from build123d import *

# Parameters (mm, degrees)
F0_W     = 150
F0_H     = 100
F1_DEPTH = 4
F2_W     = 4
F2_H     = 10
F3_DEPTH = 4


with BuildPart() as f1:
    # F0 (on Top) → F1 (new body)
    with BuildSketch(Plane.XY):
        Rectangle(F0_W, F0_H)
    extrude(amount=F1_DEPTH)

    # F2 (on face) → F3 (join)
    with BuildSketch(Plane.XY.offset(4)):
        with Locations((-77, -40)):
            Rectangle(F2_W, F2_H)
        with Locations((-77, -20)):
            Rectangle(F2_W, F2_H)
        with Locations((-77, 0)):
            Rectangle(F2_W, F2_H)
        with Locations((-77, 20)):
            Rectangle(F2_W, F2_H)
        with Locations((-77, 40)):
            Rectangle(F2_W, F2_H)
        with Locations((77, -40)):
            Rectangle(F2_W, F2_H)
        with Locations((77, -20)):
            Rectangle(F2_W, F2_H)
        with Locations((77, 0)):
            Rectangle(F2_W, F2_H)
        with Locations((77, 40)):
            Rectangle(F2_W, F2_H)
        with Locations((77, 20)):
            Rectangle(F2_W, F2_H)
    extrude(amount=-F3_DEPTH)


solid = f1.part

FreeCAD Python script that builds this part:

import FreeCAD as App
import Part
import Sketcher

V = App.Vector
Q = App.Units.Quantity

doc = App.newDocument("Part")
body = doc.addObject("PartDesign::Body", "Body")

sketch1 = body.newObject("Sketcher::SketchObject", "Sketch")
sketch1.AttachmentSupport = (doc.getObject("XY_Plane"), [""])
sketch1.MapMode = "FlatFace"
sketch1.addGeometry(Part.LineSegment(V(-75, 50, 0), V(-75, -50, 0)), False)
sketch1.addGeometry(Part.LineSegment(V(-75, -50, 0), V(75, -50, 0)), False)
sketch1.addGeometry(Part.LineSegment(V(75, -50, 0), V(75, 50, 0)), False)
sketch1.addGeometry(Part.LineSegment(V(75, 50, 0), V(-75, 50, 0)), False)
sketch1.addConstraint(Sketcher.Constraint("Coincident", 0, 2, 1, 1))
sketch1.addConstraint(Sketcher.Constraint("Coincident", 1, 2, 2, 1))
sketch1.addConstraint(Sketcher.Constraint("Coincident", 2, 2, 3, 1))
sketch1.addConstraint(Sketcher.Constraint("Coincident", 3, 2, 0, 1))
sketch1.addConstraint(Sketcher.Constraint("Vertical", 0))
sketch1.addConstraint(Sketcher.Constraint("Horizontal", 1))
sketch1.addConstraint(Sketcher.Constraint("Vertical", 2))
sketch1.addConstraint(Sketcher.Constraint("Horizontal", 3))
sketch1.addConstraint(Sketcher.Constraint("Symmetric", 0, 2, 2, 2, -1, 1))
sketch1.addConstraint(Sketcher.Constraint("DistanceX", 1, 1, 1, 2, Q("150 mm")))
sketch1.addConstraint(Sketcher.Constraint("DistanceY", 0, 2, 0, 1, Q("100 mm")))
pad1 = body.newObject("PartDesign::Pad", "Pad")
pad1.Profile = sketch1
pad1.Length = 4

sketch2 = body.newObject("Sketcher::SketchObject", "Sketch001")
sketch2.AttachmentSupport = (doc.getObject("XY_Plane"), [""])
sketch2.MapMode = "FlatFace"
sketch2.AttachmentOffset = App.Placement(V(0, 0, 4), App.Rotation())
sketch2.addGeometry(Part.LineSegment(V(-79, -35, 0), V(-79, -45, 0)), False)
sketch2.addGeometry(Part.LineSegment(V(-79, -45, 0), V(-75, -45, 0)), False)
sketch2.addGeometry(Part.LineSegment(V(-75, -45, 0), V(-75, -35, 0)), False)
sketch2.addGeometry(Part.LineSegment(V(-75, -35, 0), V(-79, -35, 0)), False)
sketch2.addGeometry(Part.LineSegment(V(-79, -15, 0), V(-79, -25, 0)), False)
sketch2.addGeometry(Part.LineSegment(V(-79, -25, 0), V(-75, -25, 0)), False)
sketch2.addGeometry(Part.LineSegment(V(-75, -25, 0), V(-75, -15, 0)), False)
sketch2.addGeometry(Part.LineSegment(V(-75, -15, 0), V(-79, -15, 0)), False)
sketch2.addGeometry(Part.LineSegment(V(-79, 5, 0), V(-79, -5, 0)), False)
sketch2.addGeometry(Part.LineSegment(V(-79, -5, 0), V(-75, -5, 0)), False)
sketch2.addGeometry(Part.LineSegment(V(-75, -5, 0), V(-75, 5, 0)), False)
sketch2.addGeometry(Part.LineSegment(V(-75, 5, 0), V(-79, 5, 0)), False)
sketch2.addGeometry(Part.LineSegment(V(-79, 25, 0), V(-79, 15, 0)), False)
sketch2.addGeometry(Part.LineSegment(V(-79, 15, 0), V(-75, 15, 0)), False)
sketch2.addGeometry(Part.LineSegment(V(-75, 15, 0), V(-75, 25, 0)), False)
sketch2.addGeometry(Part.LineSegment(V(-75, 25, 0), V(-79, 25, 0)), False)
sketch2.addGeometry(Part.LineSegment(V(-79, 45, 0), V(-79, 35, 0)), False)
sketch2.addGeometry(Part.LineSegment(V(-79, 35, 0), V(-75, 35, 0)), False)
sketch2.addGeometry(Part.LineSegment(V(-75, 35, 0), V(-75, 45, 0)), False)
sketch2.addGeometry(Part.LineSegment(V(-75, 45, 0), V(-79, 45, 0)), False)
sketch2.addGeometry(Part.LineSegment(V(75, -35, 0), V(75, -45, 0)), False)
sketch2.addGeometry(Part.LineSegment(V(75, -45, 0), V(79, -45, 0)), False)
sketch2.addGeometry(Part.LineSegment(V(79, -45, 0), V(79, -35, 0)), False)
sketch2.addGeometry(Part.LineSegment(V(79, -35, 0), V(75, -35, 0)), False)
sketch2.addGeometry(Part.LineSegment(V(75, -15, 0), V(75, -25, 0)), False)
sketch2.addGeometry(Part.LineSegment(V(75, -25, 0), V(79, -25, 0)), False)
sketch2.addGeometry(Part.LineSegment(V(79, -25, 0), V(79, -15, 0)), False)
sketch2.addGeometry(Part.LineSegment(V(79, -15, 0), V(75, -15, 0)), False)
sketch2.addGeometry(Part.LineSegment(V(75, 5, 0), V(75, -5, 0)), False)
sketch2.addGeometry(Part.LineSegment(V(75, -5, 0), V(79, -5, 0)), False)
sketch2.addGeometry(Part.LineSegment(V(79, -5, 0), V(79, 5, 0)), False)
sketch2.addGeometry(Part.LineSegment(V(79, 5, 0), V(75, 5, 0)), False)
sketch2.addGeometry(Part.LineSegment(V(75, 45, 0), V(75, 35, 0)), False)
sketch2.addGeometry(Part.LineSegment(V(75, 35, 0), V(79, 35, 0)), False)
sketch2.addGeometry(Part.LineSegment(V(79, 35, 0), V(79, 45, 0)), False)
sketch2.addGeometry(Part.LineSegment(V(79, 45, 0), V(75, 45, 0)), False)
sketch2.addGeometry(Part.LineSegment(V(75, 25, 0), V(75, 15, 0)), False)
sketch2.addGeometry(Part.LineSegment(V(75, 15, 0), V(79, 15, 0)), False)
sketch2.addGeometry(Part.LineSegment(V(79, 15, 0), V(79, 25, 0)), False)
sketch2.addGeometry(Part.LineSegment(V(79, 25, 0), V(75, 25, 0)), False)
sketch2.addConstraint(Sketcher.Constraint("Coincident", 0, 2, 1, 1))
sketch2.addConstraint(Sketcher.Constraint("Coincident", 1, 2, 2, 1))
sketch2.addConstraint(Sketcher.Constraint("Coincident", 2, 2, 3, 1))
sketch2.addConstraint(Sketcher.Constraint("Coincident", 3, 2, 0, 1))
sketch2.addConstraint(Sketcher.Constraint("Coincident", 4, 2, 5, 1))
sketch2.addConstraint(Sketcher.Constraint("Coincident", 5, 2, 6, 1))
sketch2.addConstraint(Sketcher.Constraint("Coincident", 6, 2, 7, 1))
sketch2.addConstraint(Sketcher.Constraint("Coincident", 7, 2, 4, 1))
sketch2.addConstraint(Sketcher.Constraint("Coincident", 8, 2, 9, 1))
sketch2.addConstraint(Sketcher.Constraint("Coincident", 9, 2, 10, 1))
sketch2.addConstraint(Sketcher.Constraint("Coincident", 10, 2, 11, 1))
sketch2.addConstraint(Sketcher.Constraint("Coincident", 11, 2, 8, 1))
sketch2.addConstraint(Sketcher.Constraint("Coincident", 12, 2, 13, 1))
sketch2.addConstraint(Sketcher.Constraint("Coincident", 13, 2, 14, 1))
sketch2.addConstraint(Sketcher.Constraint("Coincident", 14, 2, 15, 1))
sketch2.addConstraint(Sketcher.Constraint("Coincident", 15, 2, 12, 1))
sketch2.addConstraint(Sketcher.Constraint("Coincident", 16, 2, 17, 1))
sketch2.addConstraint(Sketcher.Constraint("Coincident", 17, 2, 18, 1))
sketch2.addConstraint(Sketcher.Constraint("Coincident", 18, 2, 19, 1))
sketch2.addConstraint(Sketcher.Constraint("Coincident", 19, 2, 16, 1))
sketch2.addConstraint(Sketcher.Constraint("Coincident", 20, 2, 21, 1))
sketch2.addConstraint(Sketcher.Constraint("Coincident", 21, 2, 22, 1))
sketch2.addConstraint(Sketcher.Constraint("Coincident", 22, 2, 23, 1))
sketch2.addConstraint(Sketcher.Constraint("Coincident", 23, 2, 20, 1))
sketch2.addConstraint(Sketcher.Constraint("Coincident", 24, 2, 25, 1))
sketch2.addConstraint(Sketcher.Constraint("Coincident", 25, 2, 26, 1))
sketch2.addConstraint(Sketcher.Constraint("Coincident", 26, 2, 27, 1))
sketch2.addConstraint(Sketcher.Constraint("Coincident", 27, 2, 24, 1))
sketch2.addConstraint(Sketcher.Constraint("Coincident", 28, 2, 29, 1))
sketch2.addConstraint(Sketcher.Constraint("Coincident", 29, 2, 30, 1))
sketch2.addConstraint(Sketcher.Constraint("Coincident", 30, 2, 31, 1))
sketch2.addConstraint(Sketcher.Constraint("Coincident", 31, 2, 28, 1))
sketch2.addConstraint(Sketcher.Constraint("Coincident", 32, 2, 33, 1))
sketch2.addConstraint(Sketcher.Constraint("Coincident", 33, 2, 34, 1))
sketch2.addConstraint(Sketcher.Constraint("Coincident", 34, 2, 35, 1))
sketch2.addConstraint(Sketcher.Constraint("Coincident", 35, 2, 32, 1))
sketch2.addConstraint(Sketcher.Constraint("Coincident", 36, 2, 37, 1))
sketch2.addConstraint(Sketcher.Constraint("Coincident", 37, 2, 38, 1))
sketch2.addConstraint(Sketcher.Constraint("Coincident", 38, 2, 39, 1))
sketch2.addConstraint(Sketcher.Constraint("Coincident", 39, 2, 36, 1))
sketch2.addConstraint(Sketcher.Constraint("Vertical", 0))
sketch2.addConstraint(Sketcher.Constraint("Horizontal", 1))
sketch2.addConstraint(Sketcher.Constraint("Vertical", 2))
sketch2.addConstraint(Sketcher.Constraint("Horizontal", 3))
sketch2.addConstraint(Sketcher.Constraint("Vertical", 4))
sketch2.addConstraint(Sketcher.Constraint("Horizontal", 5))
sketch2.addConstraint(Sketcher.Constraint("Vertical", 6))
sketch2.addConstraint(Sketcher.Constraint("Horizontal", 7))
sketch2.addConstraint(Sketcher.Constraint("Vertical", 8))
sketch2.addConstraint(Sketcher.Constraint("Horizontal", 9))
sketch2.addConstraint(Sketcher.Constraint("Vertical", 10))
sketch2.addConstraint(Sketcher.Constraint("Horizontal", 11))
sketch2.addConstraint(Sketcher.Constraint("Vertical", 12))
sketch2.addConstraint(Sketcher.Constraint("Horizontal", 13))
sketch2.addConstraint(Sketcher.Constraint("Vertical", 14))
sketch2.addConstraint(Sketcher.Constraint("Horizontal", 15))
sketch2.addConstraint(Sketcher.Constraint("Vertical", 16))
sketch2.addConstraint(Sketcher.Constraint("Horizontal", 17))
sketch2.addConstraint(Sketcher.Constraint("Vertical", 18))
sketch2.addConstraint(Sketcher.Constraint("Horizontal", 19))
sketch2.addConstraint(Sketcher.Constraint("Vertical", 20))
sketch2.addConstraint(Sketcher.Constraint("Horizontal", 21))
sketch2.addConstraint(Sketcher.Constraint("Vertical", 22))
sketch2.addConstraint(Sketcher.Constraint("Horizontal", 23))
sketch2.addConstraint(Sketcher.Constraint("Vertical", 24))
sketch2.addConstraint(Sketcher.Constraint("Horizontal", 25))
sketch2.addConstraint(Sketcher.Constraint("Vertical", 26))
sketch2.addConstraint(Sketcher.Constraint("Horizontal", 27))
sketch2.addConstraint(Sketcher.Constraint("Vertical", 28))
sketch2.addConstraint(Sketcher.Constraint("Horizontal", 29))
sketch2.addConstraint(Sketcher.Constraint("Vertical", 30))
sketch2.addConstraint(Sketcher.Constraint("Horizontal", 31))
sketch2.addConstraint(Sketcher.Constraint("Vertical", 32))
sketch2.addConstraint(Sketcher.Constraint("Horizontal", 33))
sketch2.addConstraint(Sketcher.Constraint("Vertical", 34))
sketch2.addConstraint(Sketcher.Constraint("Horizontal", 35))
sketch2.addConstraint(Sketcher.Constraint("Vertical", 36))
sketch2.addConstraint(Sketcher.Constraint("Horizontal", 37))
sketch2.addConstraint(Sketcher.Constraint("Vertical", 38))
sketch2.addConstraint(Sketcher.Constraint("Horizontal", 39))
sketch2.addConstraint(Sketcher.Constraint("Symmetric", 18, 2, 20, 2, -1, 1))
sketch2.addConstraint(Sketcher.Constraint("Symmetric", 16, 2, 22, 2, -1, 1))
sketch2.addConstraint(Sketcher.Constraint("Symmetric", 14, 2, 24, 2, -1, 1))
sketch2.addConstraint(Sketcher.Constraint("Symmetric", 12, 2, 26, 2, -1, 1))
sketch2.addConstraint(Sketcher.Constraint("Symmetric", 10, 2, 28, 2, -1, 1))
sketch2.addConstraint(Sketcher.Constraint("Symmetric", 8, 2, 30, 2, -1, 1))
sketch2.addConstraint(Sketcher.Constraint("Symmetric", 2, 2, 32, 2, -1, 1))
sketch2.addConstraint(Sketcher.Constraint("Symmetric", 0, 2, 34, 2, -1, 1))
sketch2.addConstraint(Sketcher.Constraint("Symmetric", 6, 2, 36, 2, -1, 1))
sketch2.addConstraint(Sketcher.Constraint("Symmetric", 4, 2, 38, 2, -1, 1))
sketch2.addConstraint(Sketcher.Constraint("Symmetric", 1, 2, 20, 2, -2))
sketch2.addConstraint(Sketcher.Constraint("Symmetric", 3, 2, 22, 2, -2))
sketch2.addConstraint(Sketcher.Constraint("Symmetric", 5, 2, 24, 2, -2))
sketch2.addConstraint(Sketcher.Constraint("Symmetric", 7, 2, 26, 2, -2))
sketch2.addConstraint(Sketcher.Constraint("Horizontal", 9, 2, 28, 2))
sketch2.addConstraint(Sketcher.Constraint("Vertical", 3, 2, 4, 2))
sketch2.addConstraint(Sketcher.Constraint("Vertical", 2, 2, 5, 2))
sketch2.addConstraint(Sketcher.Constraint("Vertical", 7, 2, 8, 2))
sketch2.addConstraint(Sketcher.Constraint("Vertical", 6, 2, 9, 2))
sketch2.addConstraint(Sketcher.Constraint("Equal", 2, 4))
sketch2.addConstraint(Sketcher.Constraint("Equal", 6, 8))
sketch2.addConstraint(Sketcher.Constraint("DistanceX", 1, 1, 1, 2, Q("4 mm")))
sketch2.addConstraint(Sketcher.Constraint("DistanceY", 0, 2, 0, 1, Q("10 mm")))
sketch2.addConstraint(Sketcher.Constraint("DistanceX", 0, 2, -1, 1, Q("79 mm")))
sketch2.addConstraint(Sketcher.Constraint("DistanceY", 0, 2, -1, 1, Q("45 mm")))
sketch2.addConstraint(Sketcher.Constraint("DistanceY", 4, 2, -1, 1, Q("25 mm")))
pad2 = body.newObject("PartDesign::Pad", "Pad001")
pad2.Profile = sketch2
pad2.Length = 4
pad2.Reversed = True

doc.recompute()
